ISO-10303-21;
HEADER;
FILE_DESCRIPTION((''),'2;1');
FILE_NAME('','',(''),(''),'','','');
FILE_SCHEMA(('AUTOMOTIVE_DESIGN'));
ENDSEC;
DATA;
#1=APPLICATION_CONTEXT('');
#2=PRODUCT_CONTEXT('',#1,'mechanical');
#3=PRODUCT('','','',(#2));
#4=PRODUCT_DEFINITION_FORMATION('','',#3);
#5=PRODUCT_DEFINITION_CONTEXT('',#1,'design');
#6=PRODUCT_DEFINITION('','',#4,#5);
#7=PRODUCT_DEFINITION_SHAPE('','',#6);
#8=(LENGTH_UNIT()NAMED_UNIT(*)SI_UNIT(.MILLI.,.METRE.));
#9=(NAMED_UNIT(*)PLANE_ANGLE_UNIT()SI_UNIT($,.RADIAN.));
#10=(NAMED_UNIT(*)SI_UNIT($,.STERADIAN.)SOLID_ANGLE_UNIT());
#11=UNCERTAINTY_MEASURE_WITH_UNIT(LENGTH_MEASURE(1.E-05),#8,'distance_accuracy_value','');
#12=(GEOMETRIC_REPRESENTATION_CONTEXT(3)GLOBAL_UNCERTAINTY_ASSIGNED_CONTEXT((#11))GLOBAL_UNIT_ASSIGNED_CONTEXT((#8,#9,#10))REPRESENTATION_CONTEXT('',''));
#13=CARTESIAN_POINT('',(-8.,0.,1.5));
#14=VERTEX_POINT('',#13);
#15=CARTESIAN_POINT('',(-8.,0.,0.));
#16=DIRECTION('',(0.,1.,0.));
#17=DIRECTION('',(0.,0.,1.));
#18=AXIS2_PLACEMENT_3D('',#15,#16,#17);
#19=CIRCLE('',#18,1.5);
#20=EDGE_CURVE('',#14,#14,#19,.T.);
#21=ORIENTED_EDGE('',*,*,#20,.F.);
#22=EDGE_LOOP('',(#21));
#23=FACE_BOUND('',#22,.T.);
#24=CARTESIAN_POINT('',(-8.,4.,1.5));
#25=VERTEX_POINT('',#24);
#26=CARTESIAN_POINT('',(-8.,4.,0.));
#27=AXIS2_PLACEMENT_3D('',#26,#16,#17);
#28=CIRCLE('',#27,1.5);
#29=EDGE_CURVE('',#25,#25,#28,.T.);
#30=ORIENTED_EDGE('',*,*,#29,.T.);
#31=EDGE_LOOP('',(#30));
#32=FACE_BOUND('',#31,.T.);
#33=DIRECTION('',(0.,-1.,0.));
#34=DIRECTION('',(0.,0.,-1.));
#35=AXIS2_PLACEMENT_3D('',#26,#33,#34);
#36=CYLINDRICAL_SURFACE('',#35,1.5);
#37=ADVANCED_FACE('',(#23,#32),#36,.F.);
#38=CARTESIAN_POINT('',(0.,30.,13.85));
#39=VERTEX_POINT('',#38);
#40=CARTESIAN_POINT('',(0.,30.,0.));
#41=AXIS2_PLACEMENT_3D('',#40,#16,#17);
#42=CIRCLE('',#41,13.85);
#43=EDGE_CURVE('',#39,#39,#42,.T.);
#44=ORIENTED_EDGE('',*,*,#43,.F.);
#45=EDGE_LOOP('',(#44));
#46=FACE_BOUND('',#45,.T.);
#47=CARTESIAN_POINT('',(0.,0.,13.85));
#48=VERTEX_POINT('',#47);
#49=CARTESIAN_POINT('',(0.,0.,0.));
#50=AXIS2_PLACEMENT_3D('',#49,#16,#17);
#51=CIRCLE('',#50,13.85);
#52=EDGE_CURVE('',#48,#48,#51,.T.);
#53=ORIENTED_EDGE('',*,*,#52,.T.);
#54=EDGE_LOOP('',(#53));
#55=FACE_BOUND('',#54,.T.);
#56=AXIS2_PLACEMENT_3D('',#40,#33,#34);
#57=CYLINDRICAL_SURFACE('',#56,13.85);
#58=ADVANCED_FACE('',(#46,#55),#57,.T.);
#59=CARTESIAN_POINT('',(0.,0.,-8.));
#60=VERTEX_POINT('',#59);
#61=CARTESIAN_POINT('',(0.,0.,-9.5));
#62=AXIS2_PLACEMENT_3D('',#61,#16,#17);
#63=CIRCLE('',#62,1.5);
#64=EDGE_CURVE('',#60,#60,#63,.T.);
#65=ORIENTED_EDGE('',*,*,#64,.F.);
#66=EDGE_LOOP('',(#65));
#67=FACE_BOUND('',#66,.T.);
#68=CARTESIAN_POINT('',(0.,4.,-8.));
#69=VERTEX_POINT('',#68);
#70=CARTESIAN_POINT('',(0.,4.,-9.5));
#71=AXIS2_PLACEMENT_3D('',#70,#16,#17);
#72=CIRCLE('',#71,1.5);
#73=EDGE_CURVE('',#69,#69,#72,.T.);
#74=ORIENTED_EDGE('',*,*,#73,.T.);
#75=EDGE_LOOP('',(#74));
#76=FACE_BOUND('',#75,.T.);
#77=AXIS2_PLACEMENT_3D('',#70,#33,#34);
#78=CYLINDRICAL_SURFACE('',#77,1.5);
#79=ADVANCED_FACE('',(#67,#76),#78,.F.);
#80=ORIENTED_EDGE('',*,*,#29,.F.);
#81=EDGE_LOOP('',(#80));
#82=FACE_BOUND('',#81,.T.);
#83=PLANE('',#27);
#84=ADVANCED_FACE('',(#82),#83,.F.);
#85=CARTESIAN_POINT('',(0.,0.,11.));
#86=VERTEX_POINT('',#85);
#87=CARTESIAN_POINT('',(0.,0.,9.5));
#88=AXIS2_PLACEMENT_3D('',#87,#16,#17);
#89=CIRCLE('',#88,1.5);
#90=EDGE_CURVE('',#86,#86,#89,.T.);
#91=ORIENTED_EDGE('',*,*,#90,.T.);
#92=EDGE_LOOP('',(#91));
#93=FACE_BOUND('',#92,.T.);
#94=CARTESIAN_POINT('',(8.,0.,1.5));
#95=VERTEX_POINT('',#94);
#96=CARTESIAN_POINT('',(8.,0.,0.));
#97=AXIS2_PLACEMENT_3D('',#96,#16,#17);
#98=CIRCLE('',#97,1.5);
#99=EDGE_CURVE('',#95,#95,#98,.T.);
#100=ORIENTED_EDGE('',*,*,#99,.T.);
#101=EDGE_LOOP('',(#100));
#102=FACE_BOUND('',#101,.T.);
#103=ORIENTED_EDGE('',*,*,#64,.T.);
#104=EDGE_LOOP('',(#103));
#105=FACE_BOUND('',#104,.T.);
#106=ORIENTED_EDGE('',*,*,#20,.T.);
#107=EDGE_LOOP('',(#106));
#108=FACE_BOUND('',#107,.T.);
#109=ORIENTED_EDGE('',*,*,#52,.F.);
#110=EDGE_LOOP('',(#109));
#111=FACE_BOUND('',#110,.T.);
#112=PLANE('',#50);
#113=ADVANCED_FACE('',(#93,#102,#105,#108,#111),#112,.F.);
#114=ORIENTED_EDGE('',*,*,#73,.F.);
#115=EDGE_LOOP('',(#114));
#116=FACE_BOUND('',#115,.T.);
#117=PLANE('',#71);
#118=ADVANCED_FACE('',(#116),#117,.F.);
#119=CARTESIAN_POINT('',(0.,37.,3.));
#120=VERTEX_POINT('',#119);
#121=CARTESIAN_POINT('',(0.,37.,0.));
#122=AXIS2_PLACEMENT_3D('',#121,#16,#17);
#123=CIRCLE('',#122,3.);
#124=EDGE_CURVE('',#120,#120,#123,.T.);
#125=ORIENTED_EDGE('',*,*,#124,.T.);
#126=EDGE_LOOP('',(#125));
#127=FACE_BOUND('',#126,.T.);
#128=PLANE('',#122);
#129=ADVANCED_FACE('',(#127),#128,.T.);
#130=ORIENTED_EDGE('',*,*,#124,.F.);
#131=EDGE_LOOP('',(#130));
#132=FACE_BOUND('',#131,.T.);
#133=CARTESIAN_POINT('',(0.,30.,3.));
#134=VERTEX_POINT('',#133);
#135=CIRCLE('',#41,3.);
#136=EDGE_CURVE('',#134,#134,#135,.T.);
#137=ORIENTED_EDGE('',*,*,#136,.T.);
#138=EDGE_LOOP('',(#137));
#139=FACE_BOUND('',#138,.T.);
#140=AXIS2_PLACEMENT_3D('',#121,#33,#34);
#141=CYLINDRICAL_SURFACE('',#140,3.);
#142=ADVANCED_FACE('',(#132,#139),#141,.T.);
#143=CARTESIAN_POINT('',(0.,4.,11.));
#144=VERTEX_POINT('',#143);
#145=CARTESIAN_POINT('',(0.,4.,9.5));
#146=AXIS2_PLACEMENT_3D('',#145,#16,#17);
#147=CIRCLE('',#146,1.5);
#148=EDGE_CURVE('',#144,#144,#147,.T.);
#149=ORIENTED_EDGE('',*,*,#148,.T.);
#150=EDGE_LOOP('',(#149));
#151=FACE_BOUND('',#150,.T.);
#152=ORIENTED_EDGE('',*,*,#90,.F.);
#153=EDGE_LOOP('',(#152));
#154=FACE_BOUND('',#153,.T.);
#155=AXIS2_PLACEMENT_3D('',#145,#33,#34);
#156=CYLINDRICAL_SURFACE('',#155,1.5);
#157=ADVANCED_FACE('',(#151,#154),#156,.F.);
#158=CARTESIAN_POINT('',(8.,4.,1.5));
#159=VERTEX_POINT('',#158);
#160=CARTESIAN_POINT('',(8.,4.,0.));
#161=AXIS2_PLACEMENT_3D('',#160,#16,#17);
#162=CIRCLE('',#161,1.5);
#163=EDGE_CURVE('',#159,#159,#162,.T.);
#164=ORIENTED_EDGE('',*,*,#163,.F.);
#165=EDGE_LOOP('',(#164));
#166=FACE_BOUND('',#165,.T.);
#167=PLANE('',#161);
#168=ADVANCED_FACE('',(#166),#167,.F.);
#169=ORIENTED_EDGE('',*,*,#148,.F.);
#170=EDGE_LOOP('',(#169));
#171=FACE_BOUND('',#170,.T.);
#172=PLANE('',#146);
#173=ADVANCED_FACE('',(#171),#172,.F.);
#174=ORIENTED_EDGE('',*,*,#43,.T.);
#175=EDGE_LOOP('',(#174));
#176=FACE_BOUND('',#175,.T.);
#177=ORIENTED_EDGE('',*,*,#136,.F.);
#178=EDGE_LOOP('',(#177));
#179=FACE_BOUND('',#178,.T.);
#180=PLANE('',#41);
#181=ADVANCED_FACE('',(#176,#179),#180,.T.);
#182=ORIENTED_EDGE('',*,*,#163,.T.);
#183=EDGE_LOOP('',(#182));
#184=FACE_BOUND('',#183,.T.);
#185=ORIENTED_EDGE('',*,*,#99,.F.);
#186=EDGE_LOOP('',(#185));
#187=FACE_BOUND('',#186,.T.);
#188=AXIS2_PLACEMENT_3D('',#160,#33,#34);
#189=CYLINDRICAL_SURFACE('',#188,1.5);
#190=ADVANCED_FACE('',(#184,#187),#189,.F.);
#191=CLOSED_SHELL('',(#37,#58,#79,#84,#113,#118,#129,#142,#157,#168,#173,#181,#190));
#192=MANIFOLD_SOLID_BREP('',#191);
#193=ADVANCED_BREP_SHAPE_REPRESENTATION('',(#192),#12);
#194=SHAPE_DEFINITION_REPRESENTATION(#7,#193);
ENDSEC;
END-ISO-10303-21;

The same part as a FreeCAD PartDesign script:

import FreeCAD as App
import Part
import Sketcher

V = App.Vector

doc = App.newDocument("Part")
body = doc.addObject("PartDesign::Body", "Body")

# Sketch on XZ plane
sketch1 = body.newObject("Sketcher::SketchObject", "Sketch")
sketch1.AttachmentSupport = (doc.getObject("XZ_Plane"), [""])
sketch1.MapMode = "FlatFace"
sketch1.addGeometry(Part.Circle(V(0, 0, 0), V(0, 0, 1), 14), False)
sketch1.addConstraint([
    Sketcher.Constraint("Coincident", 0, 3, -1, 1),
    Sketcher.Constraint("Diameter", 0, 27.7),
])
pad1 = body.newObject("PartDesign::Pad", "Pad")
pad1.Profile = sketch1
pad1.Length = 30
pad1.Reversed = True

# Sketch on XZ plane
sketch2 = body.newObject("Sketcher::SketchObject", "Sketch001")
sketch2.AttachmentSupport = (doc.getObject("XZ_Plane"), [""])
sketch2.MapMode = "FlatFace"
sketch2.AttachmentOffset = App.Placement(V(0, 0, -30), App.Rotation())
sketch2.addGeometry(Part.Circle(V(0, 0, 0), V(0, 0, 1), 3), False)
sketch2.addConstraint([
    Sketcher.Constraint("Coincident", 0, 3, -1, 1),
    Sketcher.Constraint("Diameter", 0, 6.0),
])
pad2 = body.newObject("PartDesign::Pad", "Pad001")
pad2.Profile = sketch2
pad2.Length = 7
pad2.Reversed = True

# Sketch on XZ plane
sketch3 = body.newObject("Sketcher::SketchObject", "Sketch002")
sketch3.AttachmentSupport = (doc.getObject("XZ_Plane"), [""])
sketch3.MapMode = "FlatFace"
sketch3.addGeometry([
    Part.Circle(V(8, 0, 0), V(0, 0, 1), 1.5),
    Part.Circle(V(-8, 0, 0), V(0, 0, 1), 1.5),
    Part.Circle(V(0, -9.5, 0), V(0, 0, 1), 1.5),
    Part.Circle(V(0, 9.5, 0), V(0, 0, 1), 1.5),
], False)
sketch3.addConstraint([
    Sketcher.Constraint("Equal", 0, 1),
    Sketcher.Constraint("Equal", 1, 2),
    Sketcher.Constraint("Equal", 2, 3),
    Sketcher.Constraint("Symmetric", 0, 3, 1, 3, -1, 1),
    Sketcher.Constraint("Symmetric", 2, 3, 3, 3, -1, 1),
    Sketcher.Constraint("PointOnObject", 0, 3, -1),
    Sketcher.Constraint("PointOnObject", 2, 3, -2),
    Sketcher.Constraint("Diameter", 0, 3.0),
    Sketcher.Constraint("DistanceX", -1, 1, 0, 3, 8.0),
    Sketcher.Constraint("DistanceY", 2, 3, 3, 3, 19.0),
])
pocket1 = body.newObject("PartDesign::Pocket", "Pocket")
pocket1.Profile = sketch3
pocket1.Length = 4

doc.recompute()
